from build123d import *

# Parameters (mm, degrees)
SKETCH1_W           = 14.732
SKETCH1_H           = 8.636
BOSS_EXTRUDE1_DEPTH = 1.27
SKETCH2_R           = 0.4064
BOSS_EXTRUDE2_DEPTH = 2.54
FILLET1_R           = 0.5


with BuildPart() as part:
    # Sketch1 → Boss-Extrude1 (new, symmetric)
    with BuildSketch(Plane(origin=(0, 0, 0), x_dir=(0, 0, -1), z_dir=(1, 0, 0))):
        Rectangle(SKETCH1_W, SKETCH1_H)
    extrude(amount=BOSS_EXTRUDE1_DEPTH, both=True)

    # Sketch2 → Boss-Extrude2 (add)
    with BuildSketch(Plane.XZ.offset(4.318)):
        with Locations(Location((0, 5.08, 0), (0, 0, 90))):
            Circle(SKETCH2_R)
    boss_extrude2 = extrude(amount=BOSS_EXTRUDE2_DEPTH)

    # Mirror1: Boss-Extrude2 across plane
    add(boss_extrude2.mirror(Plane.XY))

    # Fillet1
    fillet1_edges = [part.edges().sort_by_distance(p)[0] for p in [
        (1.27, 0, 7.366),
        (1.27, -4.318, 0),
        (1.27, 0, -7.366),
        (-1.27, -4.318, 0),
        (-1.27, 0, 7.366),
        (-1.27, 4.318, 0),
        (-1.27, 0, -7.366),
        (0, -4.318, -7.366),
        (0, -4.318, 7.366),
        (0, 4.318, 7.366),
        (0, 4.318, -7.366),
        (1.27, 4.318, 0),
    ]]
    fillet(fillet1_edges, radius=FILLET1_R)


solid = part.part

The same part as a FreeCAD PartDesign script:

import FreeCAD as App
import Part
import Sketcher

V = App.Vector
Q = App.Units.Quantity


def edges_at(feature, points):
    """Names of the edges that pass closest to the given points."""
    edges = feature.Shape.Edges
    near = lambda p: min(range(len(edges)), key=lambda i: edges[i].distToShape(Part.Vertex(*p))[0])
    return sorted({f"Edge{near(p) + 1}" for p in points})


def add_polygon(sketch, points):
    """Adds a closed chain of lines whose ends are joined by coincident constraints."""
    first, n = sketch.GeometryCount, len(points)
    for a, b in zip(points, points[1:] + points[:1]):
        sketch.addGeometry(Part.LineSegment(App.Vector(*a, 0), App.Vector(*b, 0)), False)
    for i in range(n):
        sketch.addConstraint(Sketcher.Constraint("Coincident", first + i, 2, first + (i + 1) % n, 1))

doc = App.newDocument("Part")
body = doc.addObject("PartDesign::Body", "Body")

# Sketch on YZ plane
sketch1 = body.newObject("Sketcher::SketchObject", "Sketch")
sketch1.AttachmentSupport = (doc.getObject("YZ_Plane"), [""])
sketch1.MapMode = "FlatFace"
add_polygon(sketch1, [(4, 7), (-4, 7), (-4, -7), (4, -7)])  # lines 0-3
sketch1.addConstraint([
    Sketcher.Constraint("Horizontal", 0),
    Sketcher.Constraint("Vertical", 1),
    Sketcher.Constraint("Horizontal", 2),
    Sketcher.Constraint("Vertical", 3),
    Sketcher.Constraint("Symmetric", 0, 2, 2, 2, -1, 1),
    Sketcher.Constraint("DistanceX", 0, 2, 0, 1, Q("0.34 in")),
    Sketcher.Constraint("DistanceY", 1, 2, 1, 1, Q("0.58 in")),
])
pad1 = body.newObject("PartDesign::Pad", "Pad")
pad1.Profile = sketch1
pad1.Length = Q("0.1 in")
pad1.Midplane = True

# Sketch on XZ plane
sketch2 = body.newObject("Sketcher::SketchObject", "Sketch001")
sketch2.AttachmentSupport = (doc.getObject("XZ_Plane"), [""])
sketch2.MapMode = "FlatFace"
sketch2.AttachmentOffset = App.Placement(V(0, 0, 0.17 * 25.4), App.Rotation())
sketch2.addGeometry(Part.Circle(V(0, 5.08, 0), V(0, 0, 1), 0.41), False)
sketch2.addConstraint([
    Sketcher.Constraint("PointOnObject", 0, 3, -2),
    Sketcher.Constraint("Diameter", 0, Q("0.032 in")),
    Sketcher.Constraint("DistanceY", -1, 1, 0, 3, Q("0.2 in")),
])
pad2 = body.newObject("PartDesign::Pad", "Pad001")
pad2.Profile = sketch2
pad2.Length = Q("0.1 in")
doc.recompute()

mirrored = body.newObject("PartDesign::Mirrored", "Mirrored")
mirrored.Originals = [pad2]
mirrored.MirrorPlane = (doc.getObject("XY_Plane"), [""])
body.Tip = mirrored
doc.recompute()

fillet = body.newObject("PartDesign::Fillet", "Fillet")
fillet.Base = (mirrored, edges_at(mirrored, [
    (1.27, 0, 7.366),
    (1.27, -4.318, 0),
    (1.27, 0, -7.366),
    (-1.27, -4.318, 0),
    (-1.27, 0, 7.366),
    (-1.27, 4.318, 0),
    (-1.27, 0, -7.366),
    (0, -4.318, -7.366),
    (0, -4.318, 7.366),
    (0, 4.318, 7.366),
    (0, 4.318, -7.366),
    (1.27, 4.318, 0),
]))
fillet.Radius = 0.5

doc.recompute()
